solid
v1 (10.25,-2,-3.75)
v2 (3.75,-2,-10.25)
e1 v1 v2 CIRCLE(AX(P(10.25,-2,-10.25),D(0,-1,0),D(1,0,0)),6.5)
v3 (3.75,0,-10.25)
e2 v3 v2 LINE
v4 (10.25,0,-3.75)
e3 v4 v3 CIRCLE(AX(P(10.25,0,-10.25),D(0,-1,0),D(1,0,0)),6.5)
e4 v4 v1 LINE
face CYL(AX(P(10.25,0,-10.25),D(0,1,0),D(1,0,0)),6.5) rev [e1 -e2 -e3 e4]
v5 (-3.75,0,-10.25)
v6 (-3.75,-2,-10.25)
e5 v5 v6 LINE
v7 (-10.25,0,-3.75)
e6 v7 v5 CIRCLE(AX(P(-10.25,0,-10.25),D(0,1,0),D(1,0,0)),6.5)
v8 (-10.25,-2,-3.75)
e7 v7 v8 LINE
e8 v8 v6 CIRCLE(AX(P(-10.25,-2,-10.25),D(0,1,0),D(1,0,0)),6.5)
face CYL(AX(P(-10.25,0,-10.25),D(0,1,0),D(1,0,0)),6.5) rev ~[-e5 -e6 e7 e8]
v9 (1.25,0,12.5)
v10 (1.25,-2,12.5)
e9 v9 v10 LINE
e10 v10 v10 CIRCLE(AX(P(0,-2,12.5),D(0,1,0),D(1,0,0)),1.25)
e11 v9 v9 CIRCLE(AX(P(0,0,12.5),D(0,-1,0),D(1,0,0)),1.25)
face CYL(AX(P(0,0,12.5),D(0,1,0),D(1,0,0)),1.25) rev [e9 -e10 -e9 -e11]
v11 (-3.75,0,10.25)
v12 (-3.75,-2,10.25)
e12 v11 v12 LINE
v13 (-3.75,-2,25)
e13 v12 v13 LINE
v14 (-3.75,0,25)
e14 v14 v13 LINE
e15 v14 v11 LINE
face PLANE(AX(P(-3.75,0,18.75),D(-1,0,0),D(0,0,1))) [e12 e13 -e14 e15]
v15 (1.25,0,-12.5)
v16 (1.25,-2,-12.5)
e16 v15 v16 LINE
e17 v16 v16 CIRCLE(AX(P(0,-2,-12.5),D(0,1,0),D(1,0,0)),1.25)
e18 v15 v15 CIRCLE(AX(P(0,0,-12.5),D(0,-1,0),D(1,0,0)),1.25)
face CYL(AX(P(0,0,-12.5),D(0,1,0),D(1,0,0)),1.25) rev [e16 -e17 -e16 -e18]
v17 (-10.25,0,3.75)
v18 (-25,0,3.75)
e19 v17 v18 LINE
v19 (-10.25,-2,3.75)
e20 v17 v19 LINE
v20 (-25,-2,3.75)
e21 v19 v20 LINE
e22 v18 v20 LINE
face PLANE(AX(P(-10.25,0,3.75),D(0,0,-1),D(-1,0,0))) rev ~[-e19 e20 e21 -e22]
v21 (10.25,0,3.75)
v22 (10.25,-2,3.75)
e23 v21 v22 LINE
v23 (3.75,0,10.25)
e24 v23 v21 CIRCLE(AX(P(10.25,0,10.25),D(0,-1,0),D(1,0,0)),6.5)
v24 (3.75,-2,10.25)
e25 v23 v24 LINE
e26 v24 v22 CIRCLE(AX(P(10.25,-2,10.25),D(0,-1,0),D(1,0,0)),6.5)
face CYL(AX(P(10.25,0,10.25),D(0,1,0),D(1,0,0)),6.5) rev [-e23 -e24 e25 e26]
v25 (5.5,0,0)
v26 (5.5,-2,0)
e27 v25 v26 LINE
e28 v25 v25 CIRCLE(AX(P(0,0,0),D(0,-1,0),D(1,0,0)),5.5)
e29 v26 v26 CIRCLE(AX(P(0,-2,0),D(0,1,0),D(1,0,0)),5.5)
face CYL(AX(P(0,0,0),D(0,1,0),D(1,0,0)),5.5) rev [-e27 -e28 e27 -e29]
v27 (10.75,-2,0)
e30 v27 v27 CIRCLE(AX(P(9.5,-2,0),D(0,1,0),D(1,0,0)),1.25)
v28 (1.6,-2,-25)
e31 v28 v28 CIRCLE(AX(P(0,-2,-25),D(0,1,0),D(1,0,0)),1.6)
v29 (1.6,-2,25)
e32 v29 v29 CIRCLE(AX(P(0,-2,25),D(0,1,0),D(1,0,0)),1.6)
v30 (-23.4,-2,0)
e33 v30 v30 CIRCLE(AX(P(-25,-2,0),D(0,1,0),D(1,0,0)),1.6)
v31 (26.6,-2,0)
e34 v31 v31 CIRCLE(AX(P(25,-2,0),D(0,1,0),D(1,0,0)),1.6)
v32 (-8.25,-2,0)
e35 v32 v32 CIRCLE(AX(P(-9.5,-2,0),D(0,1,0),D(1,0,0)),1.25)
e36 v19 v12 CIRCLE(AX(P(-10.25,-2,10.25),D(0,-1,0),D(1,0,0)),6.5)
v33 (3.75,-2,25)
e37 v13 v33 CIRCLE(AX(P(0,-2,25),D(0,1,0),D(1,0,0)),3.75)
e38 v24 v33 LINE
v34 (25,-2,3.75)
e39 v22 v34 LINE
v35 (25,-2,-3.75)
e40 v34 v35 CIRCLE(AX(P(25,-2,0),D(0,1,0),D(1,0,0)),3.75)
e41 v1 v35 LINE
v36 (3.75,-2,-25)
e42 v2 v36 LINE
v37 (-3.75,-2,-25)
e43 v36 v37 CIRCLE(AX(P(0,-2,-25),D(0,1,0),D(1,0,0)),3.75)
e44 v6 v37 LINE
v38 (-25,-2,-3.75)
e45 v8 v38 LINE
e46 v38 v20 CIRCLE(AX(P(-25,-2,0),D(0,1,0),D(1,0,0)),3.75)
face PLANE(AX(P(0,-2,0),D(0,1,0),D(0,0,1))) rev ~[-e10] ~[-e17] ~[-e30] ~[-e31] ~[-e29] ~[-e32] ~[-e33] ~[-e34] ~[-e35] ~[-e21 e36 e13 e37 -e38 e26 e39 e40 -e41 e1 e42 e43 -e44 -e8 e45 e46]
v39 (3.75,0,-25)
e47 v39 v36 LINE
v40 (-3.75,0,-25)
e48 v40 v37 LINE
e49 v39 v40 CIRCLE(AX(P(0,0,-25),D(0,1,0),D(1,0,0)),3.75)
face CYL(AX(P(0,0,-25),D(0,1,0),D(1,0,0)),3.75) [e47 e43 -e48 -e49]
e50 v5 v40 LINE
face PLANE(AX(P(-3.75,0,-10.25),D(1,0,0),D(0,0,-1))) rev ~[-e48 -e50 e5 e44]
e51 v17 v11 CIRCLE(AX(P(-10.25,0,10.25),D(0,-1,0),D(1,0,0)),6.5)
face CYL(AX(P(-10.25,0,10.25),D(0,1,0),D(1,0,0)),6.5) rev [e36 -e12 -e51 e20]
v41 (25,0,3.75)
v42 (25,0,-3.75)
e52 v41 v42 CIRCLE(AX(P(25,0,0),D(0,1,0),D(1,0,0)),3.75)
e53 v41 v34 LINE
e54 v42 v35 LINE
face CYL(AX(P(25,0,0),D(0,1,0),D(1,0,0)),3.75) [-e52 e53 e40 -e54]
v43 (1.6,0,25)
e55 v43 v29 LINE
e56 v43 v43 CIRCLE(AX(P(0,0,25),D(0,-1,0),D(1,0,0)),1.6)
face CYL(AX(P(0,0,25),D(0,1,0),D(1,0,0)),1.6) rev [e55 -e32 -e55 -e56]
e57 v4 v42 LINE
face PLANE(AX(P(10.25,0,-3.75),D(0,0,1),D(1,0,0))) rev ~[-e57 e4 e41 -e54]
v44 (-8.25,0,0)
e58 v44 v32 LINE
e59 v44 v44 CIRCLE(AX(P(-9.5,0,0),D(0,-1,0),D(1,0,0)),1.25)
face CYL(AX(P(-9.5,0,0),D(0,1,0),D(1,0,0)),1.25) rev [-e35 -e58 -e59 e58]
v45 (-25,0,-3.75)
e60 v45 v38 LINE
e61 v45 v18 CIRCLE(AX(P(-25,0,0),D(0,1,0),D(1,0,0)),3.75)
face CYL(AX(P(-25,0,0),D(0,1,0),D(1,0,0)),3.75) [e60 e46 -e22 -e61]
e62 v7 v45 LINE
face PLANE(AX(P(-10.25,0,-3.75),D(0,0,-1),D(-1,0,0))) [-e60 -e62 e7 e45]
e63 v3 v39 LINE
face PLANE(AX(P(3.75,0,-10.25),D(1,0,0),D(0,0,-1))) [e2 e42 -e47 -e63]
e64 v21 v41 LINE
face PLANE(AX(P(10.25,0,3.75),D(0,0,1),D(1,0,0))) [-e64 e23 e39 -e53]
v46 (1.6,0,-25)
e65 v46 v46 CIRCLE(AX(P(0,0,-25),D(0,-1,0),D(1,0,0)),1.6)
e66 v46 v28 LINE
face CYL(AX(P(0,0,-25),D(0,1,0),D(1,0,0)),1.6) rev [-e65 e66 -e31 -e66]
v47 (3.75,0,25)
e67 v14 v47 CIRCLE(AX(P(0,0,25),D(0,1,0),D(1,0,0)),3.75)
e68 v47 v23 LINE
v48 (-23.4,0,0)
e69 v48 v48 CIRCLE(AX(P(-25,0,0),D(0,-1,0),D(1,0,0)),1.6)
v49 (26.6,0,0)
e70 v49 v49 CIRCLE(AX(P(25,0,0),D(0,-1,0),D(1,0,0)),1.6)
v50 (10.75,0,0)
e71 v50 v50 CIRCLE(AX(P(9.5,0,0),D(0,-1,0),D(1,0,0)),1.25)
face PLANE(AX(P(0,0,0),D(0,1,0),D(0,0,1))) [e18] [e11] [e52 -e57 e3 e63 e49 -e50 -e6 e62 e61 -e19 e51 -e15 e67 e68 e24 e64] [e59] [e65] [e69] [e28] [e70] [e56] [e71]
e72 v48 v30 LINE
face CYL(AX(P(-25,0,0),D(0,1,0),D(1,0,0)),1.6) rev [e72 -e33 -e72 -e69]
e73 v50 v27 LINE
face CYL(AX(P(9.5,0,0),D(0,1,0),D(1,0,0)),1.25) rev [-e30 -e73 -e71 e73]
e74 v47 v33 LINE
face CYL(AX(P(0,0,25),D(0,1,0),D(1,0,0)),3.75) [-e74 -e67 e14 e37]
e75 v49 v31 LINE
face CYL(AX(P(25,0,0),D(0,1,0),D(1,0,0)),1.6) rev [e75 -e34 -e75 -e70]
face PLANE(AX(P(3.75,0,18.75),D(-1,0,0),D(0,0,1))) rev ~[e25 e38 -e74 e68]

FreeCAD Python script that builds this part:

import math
import FreeCAD as App
import Part
import Sketcher

V = App.Vector

doc = App.newDocument("Part")
body = doc.addObject("PartDesign::Body", "Body")

# Sketch on XZ plane
sketch1 = body.newObject("Sketcher::SketchObject", "Sketch")
sketch1.AttachmentSupport = (doc.getObject("XZ_Plane"), [""])
sketch1.MapMode = "FlatFace"
sketch1.addGeometry([
    Part.LineSegment(V(-3.8, 25, 0), V(-3.8, 10.2, 0)),  # 0
    Part.ArcOfCircle(Part.Circle(V(-10.2, 10.2, 0), V(0, 0, 1), 6.5), math.radians(-90), math.radians(0)),  # 1
    Part.LineSegment(V(-10.2, 3.8, 0), V(-25, 3.8, 0)),  # 2
    Part.ArcOfCircle(Part.Circle(V(-25, 0, 0), V(0, 0, 1), 3.8), math.radians(90), math.radians(270)),  # 3
    Part.LineSegment(V(-25, -3.8, 0), V(-10.2, -3.8, 0)),  # 4
    Part.ArcOfCircle(Part.Circle(V(-10.2, -10.2, 0), V(0, 0, 1), 6.5), math.radians(0), math.radians(90)),  # 5
    Part.LineSegment(V(-3.8, -10.2, 0), V(-3.8, -25, 0)),  # 6
    Part.ArcOfCircle(Part.Circle(V(0, -25, 0), V(0, 0, 1), 3.8), math.radians(180), math.radians(360)),  # 7
    Part.LineSegment(V(3.8, -25, 0), V(3.8, -10.2, 0)),  # 8
    Part.ArcOfCircle(Part.Circle(V(10.2, -10.2, 0), V(0, 0, 1), 6.5), math.radians(90), math.radians(180)),  # 9
    Part.LineSegment(V(10.2, -3.8, 0), V(25, -3.8, 0)),  # 10
    Part.ArcOfCircle(Part.Circle(V(25, 0, 0), V(0, 0, 1), 3.8), math.radians(-90), math.radians(90)),  # 11
    Part.LineSegment(V(25, 3.8, 0), V(10.2, 3.8, 0)),  # 12
    Part.ArcOfCircle(Part.Circle(V(10.2, 10.2, 0), V(0, 0, 1), 6.5), math.radians(180), math.radians(270)),  # 13
    Part.LineSegment(V(3.8, 10.2, 0), V(3.8, 25, 0)),  # 14
    Part.ArcOfCircle(Part.Circle(V(0, 25, 0), V(0, 0, 1), 3.8), math.radians(0), math.radians(180)),  # 15
], False)
sketch1.addConstraint([
    Sketcher.Constraint("Tangent", 0, 2, 1, 2),
    Sketcher.Constraint("Tangent", 1, 1, 2, 1),
    Sketcher.Constraint("Tangent", 2, 2, 3, 1),
    Sketcher.Constraint("Tangent", 3, 2, 4, 1),
    Sketcher.Constraint("Tangent", 4, 2, 5, 2),
    Sketcher.Constraint("Tangent", 5, 1, 6, 1),
    Sketcher.Constraint("Tangent", 6, 2, 7, 1),
    Sketcher.Constraint("Tangent", 7, 2, 8, 1),
    Sketcher.Constraint("Tangent", 8, 2, 9, 2),
    Sketcher.Constraint("Tangent", 9, 1, 10, 1),
    Sketcher.Constraint("Tangent", 10, 2, 11, 1),
    Sketcher.Constraint("Tangent", 11, 2, 12, 1),
    Sketcher.Constraint("Tangent", 12, 2, 13, 2),
    Sketcher.Constraint("Tangent", 13, 1, 14, 1),
    Sketcher.Constraint("Tangent", 14, 2, 15, 1),
    Sketcher.Constraint("Tangent", 15, 2, 0, 1),
    Sketcher.Constraint("Vertical", 0),
    Sketcher.Constraint("Horizontal", 2),
    Sketcher.Constraint("Horizontal", 4),
    Sketcher.Constraint("Vertical", 6),
    Sketcher.Constraint("Vertical", 8),
    Sketcher.Constraint("Horizontal", 10),
    Sketcher.Constraint("Horizontal", 12),
    Sketcher.Constraint("Vertical", 14),
    Sketcher.Constraint("Equal", 1, 5),
    Sketcher.Constraint("Equal", 3, 7),
    Sketcher.Constraint("Equal", 5, 9),
    Sketcher.Constraint("Equal", 7, 11),
    Sketcher.Constraint("Equal", 9, 13),
    Sketcher.Constraint("Equal", 11, 15),
    Sketcher.Constraint("Symmetric", 1, 3, 9, 3, -1, 1),
    Sketcher.Constraint("Symmetric", 5, 3, 9, 3, -2),
    Sketcher.Constraint("Equal", 4, 10),
    Sketcher.Constraint("Equal", 12, 0),
    Sketcher.Constraint("Equal", 0, 6),
    Sketcher.Constraint("Radius", 1, 6.5),
    Sketcher.Constraint("Radius", 3, 3.75),
    Sketcher.Constraint("DistanceX", 3, 3, -1, 1, 25.0),
])
pad1 = body.newObject("PartDesign::Pad", "Pad")
pad1.Profile = sketch1
pad1.Length = 2

# Sketch on XZ plane
sketch2 = body.newObject("Sketcher::SketchObject", "Sketch001")
sketch2.AttachmentSupport = (doc.getObject("XZ_Plane"), [""])
sketch2.MapMode = "FlatFace"
sketch2.addGeometry([
    Part.Circle(V(0, 25, 0), V(0, 0, 1), 1.6),  # 0
    Part.Circle(V(9.5, 0, 0), V(0, 0, 1), 1.2),  # 1
    Part.Circle(V(25, 0, 0), V(0, 0, 1), 1.6),  # 2
    Part.Circle(V(0, 12.5, 0), V(0, 0, 1), 1.2),  # 3
    Part.Circle(V(-9.5, 0, 0), V(0, 0, 1), 1.2),  # 4
    Part.Circle(V(-25, 0, 0), V(0, 0, 1), 1.6),  # 5
    Part.Circle(V(0, -12.5, 0), V(0, 0, 1), 1.2),  # 6
    Part.Circle(V(0, -25, 0), V(0, 0, 1), 1.6),  # 7
    Part.Circle(V(0, 0, 0), V(0, 0, 1), 5.5),  # 8
], False)
sketch2.addConstraint([
    Sketcher.Constraint("Coincident", 8, 3, -1, 1),
    Sketcher.Constraint("Equal", 0, 2),
    Sketcher.Constraint("Equal", 1, 3),
    Sketcher.Constraint("Equal", 3, 4),
    Sketcher.Constraint("Equal", 2, 5),
    Sketcher.Constraint("Equal", 4, 6),
    Sketcher.Constraint("Equal", 5, 7),
    Sketcher.Constraint("Symmetric", 1, 3, 4, 3, -1, 1),
    Sketcher.Constraint("Symmetric", 2, 3, 5, 3, -1, 1),
    Sketcher.Constraint("Symmetric", 3, 3, 6, 3, -1, 1),
    Sketcher.Constraint("Symmetric", 0, 3, 7, 3, -1, 1),
    Sketcher.Constraint("PointOnObject", 0, 3, -2),
    Sketcher.Constraint("PointOnObject", 1, 3, -1),
    Sketcher.Constraint("PointOnObject", 2, 3, -1),
    Sketcher.Constraint("PointOnObject", 3, 3, -2),
    Sketcher.Constraint("Diameter", 8, 11.0),
    Sketcher.Constraint("Diameter", 0, 3.2),
    Sketcher.Constraint("Diameter", 1, 2.5),
    Sketcher.Constraint("DistanceY", -1, 1, 0, 3, 25.0),
    Sketcher.Constraint("DistanceX", -1, 1, 2, 3, 25.0),
    Sketcher.Constraint("DistanceX", 4, 3, 1, 3, 19.0),
    Sketcher.Constraint("DistanceY", 6, 3, 3, 3, 25.0),
])
pocket1 = body.newObject("PartDesign::Pocket", "Pocket")
pocket1.Profile = sketch2
pocket1.Type = "UpToFirst"
pocket1.Reversed = True

doc.recompute()
